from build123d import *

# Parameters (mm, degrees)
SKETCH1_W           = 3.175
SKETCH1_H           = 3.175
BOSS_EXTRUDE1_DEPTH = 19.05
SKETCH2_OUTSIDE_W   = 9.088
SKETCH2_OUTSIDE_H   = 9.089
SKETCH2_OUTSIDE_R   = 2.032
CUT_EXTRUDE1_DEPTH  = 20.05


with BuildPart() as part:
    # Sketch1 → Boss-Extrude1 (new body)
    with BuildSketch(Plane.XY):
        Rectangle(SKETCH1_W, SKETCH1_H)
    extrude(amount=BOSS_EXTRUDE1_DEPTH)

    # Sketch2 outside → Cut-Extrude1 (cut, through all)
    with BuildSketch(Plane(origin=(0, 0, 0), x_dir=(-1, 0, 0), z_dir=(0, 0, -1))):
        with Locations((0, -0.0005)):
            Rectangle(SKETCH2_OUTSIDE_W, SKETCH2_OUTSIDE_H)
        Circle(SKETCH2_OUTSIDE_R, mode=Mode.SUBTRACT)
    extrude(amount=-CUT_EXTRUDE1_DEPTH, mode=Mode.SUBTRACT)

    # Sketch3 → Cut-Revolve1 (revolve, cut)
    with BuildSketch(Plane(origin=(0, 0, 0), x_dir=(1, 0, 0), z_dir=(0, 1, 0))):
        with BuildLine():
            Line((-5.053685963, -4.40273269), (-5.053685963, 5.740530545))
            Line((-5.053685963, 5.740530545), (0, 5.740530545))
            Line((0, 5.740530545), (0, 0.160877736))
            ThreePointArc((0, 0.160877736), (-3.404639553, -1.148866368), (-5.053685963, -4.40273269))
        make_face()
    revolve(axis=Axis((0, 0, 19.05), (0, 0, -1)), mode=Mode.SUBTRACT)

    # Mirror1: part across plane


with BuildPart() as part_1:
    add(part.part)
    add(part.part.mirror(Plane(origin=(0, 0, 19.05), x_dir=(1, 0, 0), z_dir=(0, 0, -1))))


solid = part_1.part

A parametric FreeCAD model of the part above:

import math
import FreeCAD as App
import Part
import Sketcher

V = App.Vector
Q = App.Units.Quantity

doc = App.newDocument("Part")
body = doc.addObject("PartDesign::Body", "Body")

# Sketch on XY plane
sketch1 = doc.addObject("Sketcher::SketchObject", "Sketch")
body.addObject(sketch1)
sketch1.AttachmentSupport = (doc.XY_Plane, [""])
sketch1.MapMode = "FlatFace"
sketch1.addGeometry(Part.LineSegment(V(-1.6, 1.6, 0), V(-1.6, -1.6, 0)), False)
sketch1.addGeometry(Part.LineSegment(V(-1.6, -1.6, 0), V(1.6, -1.6, 0)), False)
sketch1.addGeometry(Part.LineSegment(V(1.6, -1.6, 0), V(1.6, 1.6, 0)), False)
sketch1.addGeometry(Part.LineSegment(V(1.6, 1.6, 0), V(-1.6, 1.6, 0)), False)
sketch1.addConstraint(Sketcher.Constraint("Coincident", 0, 2, 1, 1))
sketch1.addConstraint(Sketcher.Constraint("Coincident", 1, 2, 2, 1))
sketch1.addConstraint(Sketcher.Constraint("Coincident", 2, 2, 3, 1))
sketch1.addConstraint(Sketcher.Constraint("Coincident", 3, 2, 0, 1))
sketch1.addConstraint(Sketcher.Constraint("Vertical", 0))
sketch1.addConstraint(Sketcher.Constraint("Horizontal", 1))
sketch1.addConstraint(Sketcher.Constraint("Vertical", 2))
sketch1.addConstraint(Sketcher.Constraint("Horizontal", 3))
sketch1.addConstraint(Sketcher.Constraint("Symmetric", 0, 2, 2, 2, -1, 1))
sketch1.addConstraint(Sketcher.Constraint("Equal", 3, 0))
sketch1.addConstraint(Sketcher.Constraint("DistanceX", 1, 1, 1, 2, Q("0.125 in")))
pad1 = doc.addObject("PartDesign::Pad", "Pad")
body.addObject(pad1)
pad1.Profile = sketch1
pad1.Length = Q("0.75 in")

# Sketch on XY plane
sketch2 = doc.addObject("Sketcher::SketchObject", "Sketch001")
body.addObject(sketch2)
sketch2.AttachmentSupport = (doc.XY_Plane, [""])
sketch2.MapMode = "FlatFace"
sketch2.addGeometry(Part.LineSegment(V(4.5, 4.5, 0), V(4.5, -4.5, 0)), False)
sketch2.addGeometry(Part.LineSegment(V(4.5, -4.5, 0), V(-4.5, -4.5, 0)), False)
sketch2.addGeometry(Part.LineSegment(V(-4.5, -4.5, 0), V(-4.5, 4.5, 0)), False)
sketch2.addGeometry(Part.LineSegment(V(-4.5, 4.5, 0), V(4.5, 4.5, 0)), False)
sketch2.addGeometry(Part.Circle(V(0, 0, 0), V(0, 0, 1), 2), False)
sketch2.addConstraint(Sketcher.Constraint("Coincident", 0, 2, 1, 1))
sketch2.addConstraint(Sketcher.Constraint("Coincident", 1, 2, 2, 1))
sketch2.addConstraint(Sketcher.Constraint("Coincident", 2, 2, 3, 1))
sketch2.addConstraint(Sketcher.Constraint("Coincident", 3, 2, 0, 1))
sketch2.addConstraint(Sketcher.Constraint("Vertical", 0))
sketch2.addConstraint(Sketcher.Constraint("Horizontal", 1))
sketch2.addConstraint(Sketcher.Constraint("Vertical", 2))
sketch2.addConstraint(Sketcher.Constraint("Horizontal", 3))
sketch2.addConstraint(Sketcher.Constraint("Coincident", 4, 3, -1, 1))
sketch2.addConstraint(Sketcher.Constraint("Diameter", 4, Q("0.16 in")))
sketch2.addConstraint(Sketcher.Constraint("DistanceX", 1, 2, 1, 1, 9.088))
sketch2.addConstraint(Sketcher.Constraint("DistanceY", 0, 2, 0, 1, 9.089))
sketch2.addConstraint(Sketcher.Constraint("DistanceX", -1, 1, 0, 2, 4.544))
sketch2.addConstraint(Sketcher.Constraint("DistanceY", 0, 2, -1, 1, 4.545))
pocket1 = doc.addObject("PartDesign::Pocket", "Pocket")
body.addObject(pocket1)
pocket1.Profile = sketch2
pocket1.Type = "ThroughAll"
pocket1.Reversed = True

# Sketch on XZ plane
sketch3 = doc.addObject("Sketcher::SketchObject", "Sketch002")
body.addObject(sketch3)
sketch3.AttachmentSupport = (doc.XZ_Plane, [""])
sketch3.MapMode = "FlatFace"
sketch3.addGeometry(Part.LineSegment(V(-5, -6, 0), V(-5, 4, 0)), False)
sketch3.addGeometry(Part.ArcOfCircle(Part.Circle(V(0, 5, 0), V(0, 0, 1), 5), math.radians(-174), math.radians(-90)), False)
sketch3.addGeometry(Part.LineSegment(V(0, 0, 0), V(0, -6, 0)), False)
sketch3.addGeometry(Part.LineSegment(V(0, -6, 0), V(-5, -6, 0)), False)
sketch3.addConstraint(Sketcher.Constraint("Coincident", 0, 2, 1, 1))
sketch3.addConstraint(Sketcher.Constraint("Coincident", 1, 2, 2, 1))
sketch3.addConstraint(Sketcher.Constraint("Coincident", 2, 2, 3, 1))
sketch3.addConstraint(Sketcher.Constraint("Coincident", 3, 2, 0, 1))
sketch3.addConstraint(Sketcher.Constraint("Vertical", 0))
sketch3.addConstraint(Sketcher.Constraint("Vertical", 2))
sketch3.addConstraint(Sketcher.Constraint("Horizontal", 3))
sketch3.addConstraint(Sketcher.Constraint("PointOnObject", 1, 3, -2))
sketch3.addConstraint(Sketcher.Constraint("PointOnObject", 1, 2, -2))
sketch3.addConstraint(Sketcher.Constraint("Radius", 1, Q("0.2 in")))
sketch3.addConstraint(Sketcher.Constraint("DistanceX", 3, 2, 3, 1, 5.053686))
sketch3.addConstraint(Sketcher.Constraint("DistanceY", 0, 1, 0, 2, 10.143263))
sketch3.addConstraint(Sketcher.Constraint("DistanceY", 2, 2, -1, 1, 5.740531))
groove = doc.addObject("PartDesign::Groove", "Groove")
body.addObject(groove)
groove.Profile = sketch3
groove.ReferenceAxis = (sketch3, ["V_Axis"])
groove.Angle = 360
body2 = doc.addObject("PartDesign::Body", "Body001")
doc.recompute()

body2.BaseFeature = body
doc.recompute()

mirroring = doc.addObject("Part::Mirroring", "Mirroring")
mirroring.Source = body
mirroring.Base = V(0, 0, 19.05)
mirroring.Normal = V(0, 0, -1)
body3 = doc.addObject("PartDesign::Body", "Body002")
body3.BaseFeature = mirroring
boolean = doc.addObject("PartDesign::Boolean", "Boolean")
body2.addObject(boolean)
boolean.Type = "Fuse"
boolean.addObjects([body3])
doc.recompute()
mirroring.Visibility = False

doc.recompute()
